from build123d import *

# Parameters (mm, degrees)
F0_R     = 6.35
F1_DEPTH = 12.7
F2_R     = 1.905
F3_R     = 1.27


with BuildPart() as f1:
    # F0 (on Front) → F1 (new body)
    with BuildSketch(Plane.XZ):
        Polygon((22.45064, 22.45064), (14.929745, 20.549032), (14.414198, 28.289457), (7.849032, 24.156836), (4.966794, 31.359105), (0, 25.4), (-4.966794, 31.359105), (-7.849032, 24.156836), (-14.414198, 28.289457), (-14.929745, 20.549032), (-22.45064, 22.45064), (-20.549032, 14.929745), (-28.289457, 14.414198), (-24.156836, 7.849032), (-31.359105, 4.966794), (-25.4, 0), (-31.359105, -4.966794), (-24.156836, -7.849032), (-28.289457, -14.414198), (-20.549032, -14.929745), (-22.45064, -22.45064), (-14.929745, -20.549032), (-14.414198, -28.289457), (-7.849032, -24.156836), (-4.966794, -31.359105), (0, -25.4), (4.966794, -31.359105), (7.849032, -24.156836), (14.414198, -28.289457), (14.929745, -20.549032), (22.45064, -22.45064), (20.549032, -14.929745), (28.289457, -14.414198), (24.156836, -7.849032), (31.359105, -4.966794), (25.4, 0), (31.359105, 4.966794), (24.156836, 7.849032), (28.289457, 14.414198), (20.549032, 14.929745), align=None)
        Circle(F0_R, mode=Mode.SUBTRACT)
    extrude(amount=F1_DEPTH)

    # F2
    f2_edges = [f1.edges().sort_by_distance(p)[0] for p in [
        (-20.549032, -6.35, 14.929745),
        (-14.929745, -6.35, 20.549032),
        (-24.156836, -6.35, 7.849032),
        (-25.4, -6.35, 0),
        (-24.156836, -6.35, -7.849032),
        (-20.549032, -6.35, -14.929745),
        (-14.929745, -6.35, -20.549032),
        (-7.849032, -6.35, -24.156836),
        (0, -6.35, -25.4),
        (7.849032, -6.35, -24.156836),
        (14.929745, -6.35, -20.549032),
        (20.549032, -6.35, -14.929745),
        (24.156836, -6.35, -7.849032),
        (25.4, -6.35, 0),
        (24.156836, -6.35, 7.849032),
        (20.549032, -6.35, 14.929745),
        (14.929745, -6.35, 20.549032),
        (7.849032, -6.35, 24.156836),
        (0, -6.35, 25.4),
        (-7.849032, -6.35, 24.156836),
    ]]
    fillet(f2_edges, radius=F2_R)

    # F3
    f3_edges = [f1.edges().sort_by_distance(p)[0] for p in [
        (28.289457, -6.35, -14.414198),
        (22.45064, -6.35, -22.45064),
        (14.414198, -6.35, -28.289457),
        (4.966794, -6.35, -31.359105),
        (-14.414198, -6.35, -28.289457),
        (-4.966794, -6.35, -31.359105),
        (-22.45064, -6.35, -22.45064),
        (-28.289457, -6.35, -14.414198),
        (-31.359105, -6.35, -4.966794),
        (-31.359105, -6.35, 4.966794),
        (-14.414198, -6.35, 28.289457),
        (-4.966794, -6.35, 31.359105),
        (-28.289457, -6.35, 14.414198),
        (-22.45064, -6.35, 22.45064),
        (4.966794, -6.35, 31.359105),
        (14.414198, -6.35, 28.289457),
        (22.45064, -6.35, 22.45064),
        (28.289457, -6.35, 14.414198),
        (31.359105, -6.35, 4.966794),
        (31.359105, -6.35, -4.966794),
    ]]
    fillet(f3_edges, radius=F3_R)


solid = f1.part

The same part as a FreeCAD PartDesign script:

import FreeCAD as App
import Part
import Sketcher
from FreeCAD import Vector
Q = App.Units.Quantity


def edges_at(feature, points):
    """Names of the edges that pass closest to the given points."""
    edges = feature.Shape.Edges
    near = lambda p: min(range(len(edges)), key=lambda i: edges[i].distToShape(Part.Vertex(*p))[0])
    return sorted({f"Edge{near(p) + 1}" for p in points})


def add_polygon(sketch, points):
    """Adds a closed chain of lines whose ends are joined by coincident constraints."""
    first, n = sketch.GeometryCount, len(points)
    for a, b in zip(points, points[1:] + points[:1]):
        sketch.addGeometry(Part.LineSegment(App.Vector(*a, 0), App.Vector(*b, 0)), False)
    for i in range(n):
        sketch.addConstraint(Sketcher.Constraint("Coincident", first + i, 2, first + (i + 1) % n, 1))

doc = App.newDocument("Part")
params = doc.addObject("Spreadsheet::Sheet", "Params")
for row, (alias, value) in enumerate([
    ("sketch1_diameter", "0.5 in"),
    ("pad1_length", "0.5 in"),
    ("fillet_radius", "0.075 in"),
    ("fillet2_radius", "0.05 in"),
], start=1):
    params.set(f"A{row}", alias)
    params.set(f"B{row}", "=" + value)
    params.setAlias(f"B{row}", alias)

body = doc.addObject("PartDesign::Body", "Body")

# Sketch on XZ plane
sketch1 = doc.addObject("Sketcher::SketchObject", "Sketch")
body.addObject(sketch1)
sketch1.AttachmentSupport = (doc.XZ_Plane, [""])
sketch1.MapMode = "FlatFace"
add_polygon(sketch1, [(22.45064, 22.45064), (14.929745, 20.549032), (14.414198, 28.289457), (7.849032, 24.156836), (4.966794, 31.359105), (0, 25.4), (-4.966794, 31.359105), (-7.849032, 24.156836), (-14.414198, 28.289457), (-14.929745, 20.549032), (-22.45064, 22.45064), (-20.549032, 14.929745), (-28.289457, 14.414198), (-24.156836, 7.849032), (-31.359105, 4.966794), (-25.4, 0), (-31.359105, -4.966794), (-24.156836, -7.849032), (-28.289457, -14.414198), (-20.549032, -14.929745), (-22.45064, -22.45064), (-14.929745, -20.549032), (-14.414198, -28.289457), (-7.849032, -24.156836), (-4.966794, -31.359105), (0, -25.4), (4.966794, -31.359105), (7.849032, -24.156836), (14.414198, -28.289457), (14.929745, -20.549032), (22.45064, -22.45064), (20.549032, -14.929745), (28.289457, -14.414198), (24.156836, -7.849032), (31.359105, -4.966794), (25.4, 0), (31.359105, 4.966794), (24.156836, 7.849032), (28.289457, 14.414198), (20.549032, 14.929745)])  # lines 0-39
sketch1.addGeometry(Part.Circle(Vector(0, 0, 0), Vector(0, 0, 1), 6.35), False)  # 40
sketch1.addConstraint(Sketcher.Constraint("Coincident", 40, 3, -1, 1))
sketch1.addConstraint(Sketcher.Constraint("Symmetric", 0, 2, 20, 2, -1, 1))
sketch1.addConstraint(Sketcher.Constraint("Symmetric", 1, 2, 21, 2, -1, 1))
sketch1.addConstraint(Sketcher.Constraint("Symmetric", 2, 2, 22, 2, -1, 1))
sketch1.addConstraint(Sketcher.Constraint("Symmetric", 3, 2, 23, 2, -1, 1))
sketch1.addConstraint(Sketcher.Constraint("Symmetric", 4, 2, 24, 2, -1, 1))
sketch1.addConstraint(Sketcher.Constraint("Symmetric", 5, 2, 25, 2, -1, 1))
sketch1.addConstraint(Sketcher.Constraint("Symmetric", 6, 2, 26, 2, -1, 1))
sketch1.addConstraint(Sketcher.Constraint("Symmetric", 7, 2, 27, 2, -1, 1))
sketch1.addConstraint(Sketcher.Constraint("Symmetric", 8, 2, 28, 2, -1, 1))
sketch1.addConstraint(Sketcher.Constraint("Symmetric", 9, 2, 29, 2, -1, 1))
sketch1.addConstraint(Sketcher.Constraint("Symmetric", 10, 2, 30, 2, -1, 1))
sketch1.addConstraint(Sketcher.Constraint("Symmetric", 11, 2, 31, 2, -1, 1))
sketch1.addConstraint(Sketcher.Constraint("Symmetric", 12, 2, 32, 2, -1, 1))
sketch1.addConstraint(Sketcher.Constraint("Symmetric", 13, 2, 33, 2, -1, 1))
sketch1.addConstraint(Sketcher.Constraint("Symmetric", 14, 2, 34, 2, -1, 1))
sketch1.addConstraint(Sketcher.Constraint("Symmetric", 15, 2, 35, 2, -1, 1))
sketch1.addConstraint(Sketcher.Constraint("Symmetric", 16, 2, 36, 2, -1, 1))
sketch1.addConstraint(Sketcher.Constraint("Symmetric", 17, 2, 37, 2, -1, 1))
sketch1.addConstraint(Sketcher.Constraint("Symmetric", 18, 2, 38, 2, -1, 1))
sketch1.addConstraint(Sketcher.Constraint("Symmetric", 19, 2, 39, 2, -1, 1))
sketch1.addConstraint(Sketcher.Constraint("Symmetric", 3, 2, 5, 2, -2))
sketch1.addConstraint(Sketcher.Constraint("Symmetric", 2, 2, 6, 2, -2))
sketch1.addConstraint(Sketcher.Constraint("Symmetric", 1, 2, 7, 2, -2))
sketch1.addConstraint(Sketcher.Constraint("Symmetric", 0, 2, 8, 2, -2))
sketch1.addConstraint(Sketcher.Constraint("Symmetric", 19, 2, 29, 2, -2))
sketch1.addConstraint(Sketcher.Constraint("Symmetric", 18, 2, 30, 2, -2))
sketch1.addConstraint(Sketcher.Constraint("Symmetric", 17, 2, 31, 2, -2))
sketch1.addConstraint(Sketcher.Constraint("Symmetric", 16, 2, 32, 2, -2))
sketch1.addConstraint(Sketcher.Constraint("Symmetric", 15, 2, 33, 2, -2))
sketch1.addConstraint(Sketcher.Constraint("PointOnObject", 4, 2, -2))
sketch1.addConstraint(Sketcher.Constraint("PointOnObject", 14, 2, -1))
sketch1.addConstraint(Sketcher.Constraint("Perpendicular", 0, 10))
sketch1.addConstraint(Sketcher.Constraint("Perpendicular", 1, 11))
sketch1.addConstraint(Sketcher.Constraint("Perpendicular", 2, 12))
sketch1.addConstraint(Sketcher.Constraint("Perpendicular", 3, 13))
sketch1.addConstraint(Sketcher.Constraint("Perpendicular", 4, 14))
sketch1.addConstraint(Sketcher.Constraint("Equal", 0, 1))
sketch1.addConstraint(Sketcher.Constraint("Equal", 1, 2))
sketch1.addConstraint(Sketcher.Constraint("Equal", 2, 3))
sketch1.addConstraint(Sketcher.Constraint("Equal", 3, 4))
sketch1.addConstraint(Sketcher.Constraint("Equal", 9, 10))
sketch1.addConstraint(Sketcher.Constraint("Equal", 10, 11))
sketch1.addConstraint(Sketcher.Constraint("Equal", 11, 12))
sketch1.addConstraint(Sketcher.Constraint("Equal", 12, 13))
sketch1.addConstraint(Sketcher.Constraint("Equal", 13, 14))
sketch1.addConstraint(Sketcher.Constraint("Diameter", 40, Q("0.5 in")))
sketch1.addConstraint(Sketcher.Constraint("DistanceY", -1, 1, 4, 2, Q("1 in")))
sketch1.addConstraint(Sketcher.Constraint("DistanceX", 10, 2, 6, 2, Q("0.5 in")))
sketch1.addConstraint(Sketcher.Constraint("DistanceX", -1, 1, 1, 2, Q("14.414198 mm")))
sketch1.addConstraint(Sketcher.Constraint("DistanceX", 9, 2, -1, 1, Q("22.45064 mm")))
sketch1.addConstraint(Sketcher.Constraint("DistanceY", 2, 2, 1, 2, Q("4.132621 mm")))
sketch1.addConstraint(Sketcher.Constraint("DistanceX", 3, 2, 2, 2, Q("2.882238 mm")))
sketch1.setExpression("Constraints[86]", "Params.sketch1_diameter")
pad1 = doc.addObject("PartDesign::Pad", "Pad")
body.addObject(pad1)
pad1.Profile = sketch1
pad1.setExpression("Length", "Params.pad1_length")
doc.recompute()

fillet = doc.addObject("PartDesign::Fillet", "Fillet")
body.addObject(fillet)
fillet.Base = (pad1, edges_at(pad1, [
    (-20.549, -6.35, 14.93),
    (-14.93, -6.35, 20.549),
    (-24.157, -6.35, 7.849),
    (-25.4, -6.35, 0),
    (-24.157, -6.35, -7.849),
    (-20.549, -6.35, -14.93),
    (-14.93, -6.35, -20.549),
    (-7.849, -6.35, -24.157),
    (0, -6.35, -25.4),
    (7.849, -6.35, -24.157),
    (14.93, -6.35, -20.549),
    (20.549, -6.35, -14.93),
    (24.157, -6.35, -7.849),
    (25.4, -6.35, 0),
    (24.157, -6.35, 7.849),
    (20.549, -6.35, 14.93),
    (14.93, -6.35, 20.549),
    (7.849, -6.35, 24.157),
    (0, -6.35, 25.4),
    (-7.849, -6.35, 24.157),
]))
fillet.setExpression("Radius", "Params.fillet_radius")
doc.recompute()

fillet2 = doc.addObject("PartDesign::Fillet", "Fillet001")
body.addObject(fillet2)
fillet2.Base = (fillet, edges_at(fillet, [
    (28.289, -6.35, -14.414),
    (22.451, -6.35, -22.451),
    (14.414, -6.35, -28.289),
    (4.967, -6.35, -31.359),
    (-14.414, -6.35, -28.289),
    (-4.967, -6.35, -31.359),
    (-22.451, -6.35, -22.451),
    (-28.289, -6.35, -14.414),
    (-31.359, -6.35, -4.967),
    (-31.359, -6.35, 4.967),
    (-14.414, -6.35, 28.289),
    (-4.967, -6.35, 31.359),
    (-28.289, -6.35, 14.414),
    (-22.451, -6.35, 22.451),
    (4.967, -6.35, 31.359),
    (14.414, -6.35, 28.289),
    (22.451, -6.35, 22.451),
    (28.289, -6.35, 14.414),
    (31.359, -6.35, 4.967),
    (31.359, -6.35, -4.967),
]))
fillet2.setExpression("Radius", "Params.fillet2_radius")

doc.recompute()
